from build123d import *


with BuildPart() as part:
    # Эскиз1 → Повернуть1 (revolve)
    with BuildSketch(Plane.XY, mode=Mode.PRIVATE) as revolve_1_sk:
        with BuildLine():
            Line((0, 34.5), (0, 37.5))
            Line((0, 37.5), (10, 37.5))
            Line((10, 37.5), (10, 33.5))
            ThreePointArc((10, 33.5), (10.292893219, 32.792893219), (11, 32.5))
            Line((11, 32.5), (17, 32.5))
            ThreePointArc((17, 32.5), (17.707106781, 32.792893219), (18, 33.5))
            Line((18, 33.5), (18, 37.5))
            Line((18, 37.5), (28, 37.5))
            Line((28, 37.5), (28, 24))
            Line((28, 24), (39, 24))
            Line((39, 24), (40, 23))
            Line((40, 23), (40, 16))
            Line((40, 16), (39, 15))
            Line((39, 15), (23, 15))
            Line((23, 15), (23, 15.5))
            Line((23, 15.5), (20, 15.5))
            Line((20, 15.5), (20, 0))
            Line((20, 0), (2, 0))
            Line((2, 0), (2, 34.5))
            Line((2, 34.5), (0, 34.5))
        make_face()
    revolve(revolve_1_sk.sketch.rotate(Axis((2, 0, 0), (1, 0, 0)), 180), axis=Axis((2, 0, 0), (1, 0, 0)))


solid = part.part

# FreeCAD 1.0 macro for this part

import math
import FreeCAD as App
import Part
import Sketcher

V = App.Vector
Q = App.Units.Quantity

doc = App.newDocument("Part")
params = doc.addObject("Spreadsheet::Sheet", "Params")
for row, (alias, value) in enumerate([
    ("sketch1_radius", "1 mm"),
    ("sketch1_width", "2 mm"),
    ("sketch1_width2", "18 mm"),
    ("sketch1_width3", "3 mm"),
    ("sketch1_width4", "16 mm"),
    ("revolution_angle", "360 deg"),
], start=1):
    params.set(f"A{row}", alias)
    params.set(f"B{row}", "=" + value)
    params.setAlias(f"B{row}", alias)

body = doc.addObject("PartDesign::Body", "Body")

# Sketch on XY plane
sketch1 = body.newObject("Sketcher::SketchObject", "Sketch")
sketch1.AttachmentSupport = (doc.getObject("XY_Plane"), [""])
sketch1.MapMode = "FlatFace"
sketch1.addGeometry([
    Part.LineSegment(V(0, 37.5, 0), V(0, 34.5, 0)),  # 0
    Part.LineSegment(V(0, 34.5, 0), V(2, 34.5, 0)),  # 1
    Part.LineSegment(V(2, 34.5, 0), V(2, 0, 0)),  # 2
    Part.LineSegment(V(2, 0, 0), V(20, 0, 0)),  # 3
    Part.LineSegment(V(20, 0, 0), V(20, 15.5, 0)),  # 4
    Part.LineSegment(V(20, 15.5, 0), V(23, 15.5, 0)),  # 5
    Part.LineSegment(V(23, 15.5, 0), V(23, 15, 0)),  # 6
    Part.LineSegment(V(23, 15, 0), V(39, 15, 0)),  # 7
    Part.LineSegment(V(39, 15, 0), V(40, 16, 0)),  # 8
    Part.LineSegment(V(40, 16, 0), V(40, 23, 0)),  # 9
    Part.LineSegment(V(40, 23, 0), V(39, 24, 0)),  # 10
    Part.LineSegment(V(39, 24, 0), V(28, 24, 0)),  # 11
    Part.LineSegment(V(28, 24, 0), V(28, 37.5, 0)),  # 12
    Part.LineSegment(V(28, 37.5, 0), V(18, 37.5, 0)),  # 13
    Part.LineSegment(V(18, 37.5, 0), V(18, 33.5, 0)),  # 14
    Part.ArcOfCircle(Part.Circle(V(17, 33.5, 0), V(0, 0, 1), 1), math.radians(-90), math.radians(0)),  # 15
    Part.LineSegment(V(17, 32.5, 0), V(11, 32.5, 0)),  # 16
    Part.ArcOfCircle(Part.Circle(V(11, 33.5, 0), V(0, 0, 1), 1), math.radians(-180), math.radians(-90)),  # 17
    Part.LineSegment(V(10, 33.5, 0), V(10, 37.5, 0)),  # 18
    Part.LineSegment(V(10, 37.5, 0), V(0, 37.5, 0)),  # 19
], False)
sketch1.addConstraint([
    Sketcher.Constraint("Coincident", 0, 2, 1, 1),
    Sketcher.Constraint("Coincident", 1, 2, 2, 1),
    Sketcher.Constraint("Coincident", 2, 2, 3, 1),
    Sketcher.Constraint("Coincident", 3, 2, 4, 1),
    Sketcher.Constraint("Coincident", 4, 2, 5, 1),
    Sketcher.Constraint("Coincident", 5, 2, 6, 1),
    Sketcher.Constraint("Coincident", 6, 2, 7, 1),
    Sketcher.Constraint("Coincident", 7, 2, 8, 1),
    Sketcher.Constraint("Coincident", 8, 2, 9, 1),
    Sketcher.Constraint("Coincident", 9, 2, 10, 1),
    Sketcher.Constraint("Coincident", 10, 2, 11, 1),
    Sketcher.Constraint("Coincident", 11, 2, 12, 1),
    Sketcher.Constraint("Coincident", 12, 2, 13, 1),
    Sketcher.Constraint("Coincident", 13, 2, 14, 1),
    Sketcher.Constraint("Tangent", 14, 2, 15, 2),
    Sketcher.Constraint("Tangent", 15, 1, 16, 1),
    Sketcher.Constraint("Tangent", 16, 2, 17, 2),
    Sketcher.Constraint("Tangent", 17, 1, 18, 1),
    Sketcher.Constraint("Coincident", 18, 2, 19, 1),
    Sketcher.Constraint("Coincident", 19, 2, 0, 1),
    Sketcher.Constraint("Vertical", 0),
    Sketcher.Constraint("Horizontal", 1),
    Sketcher.Constraint("Vertical", 2),
    Sketcher.Constraint("Horizontal", 3),
    Sketcher.Constraint("Vertical", 4),
    Sketcher.Constraint("Horizontal", 5),
    Sketcher.Constraint("Vertical", 6),
    Sketcher.Constraint("Horizontal", 7),
    Sketcher.Constraint("Vertical", 9),
    Sketcher.Constraint("Horizontal", 11),
    Sketcher.Constraint("Vertical", 12),
    Sketcher.Constraint("Horizontal", 13),
    Sketcher.Constraint("Vertical", 14),
    Sketcher.Constraint("Horizontal", 16),
    Sketcher.Constraint("Vertical", 18),
    Sketcher.Constraint("Horizontal", 19),
    Sketcher.Constraint("Equal", 15, 17),
    Sketcher.Constraint("PointOnObject", 0, 2, -2),
    Sketcher.Constraint("PointOnObject", 2, 2, -1),
    Sketcher.Constraint("Perpendicular", 8, 10),
    Sketcher.Constraint("Horizontal", 13, 2, 18, 2),
    Sketcher.Constraint("Vertical", 7, 2, 10, 2),
    Sketcher.Constraint("Equal", 13, 19),
    Sketcher.Constraint("Equal", 5, 0),
    Sketcher.Constraint("Equal", 8, 10),
    Sketcher.Constraint("Radius", 15, Q("1 mm")),
    Sketcher.Constraint("DistanceX", 1, 1, 1, 2, Q("2 mm")),
    Sketcher.Constraint("DistanceX", 3, 1, 3, 2, Q("18 mm")),
    Sketcher.Constraint("DistanceX", 5, 1, 5, 2, Q("3 mm")),
    Sketcher.Constraint("DistanceX", 7, 1, 7, 2, Q("16 mm")),
    Sketcher.Constraint("DistanceX", 11, 2, 11, 1, Q("11 mm")),
    Sketcher.Constraint("DistanceX", 13, 2, 13, 1, Q("10 mm")),
    Sketcher.Constraint("DistanceY", 9, 1, 9, 2, Q("7 mm")),
    Sketcher.Constraint("DistanceY", 14, 2, 14, 1, Q("4 mm")),
    Sketcher.Constraint("DistanceY", 2, 2, 2, 1, Q("34.5 mm")),
    Sketcher.Constraint("DistanceY", 4, 1, 4, 2, Q("15.5 mm")),
    Sketcher.Constraint("DistanceY", 6, 2, 6, 1, Q("0.5 mm")),
    Sketcher.Constraint("DistanceY", 12, 1, 12, 2, Q("13.5 mm")),
])
sketch1.setExpression("Constraints[45]", "Params.sketch1_radius")
sketch1.setExpression("Constraints[46]", "Params.sketch1_width")
sketch1.setExpression("Constraints[47]", "Params.sketch1_width2")
sketch1.setExpression("Constraints[48]", "Params.sketch1_width3")
sketch1.setExpression("Constraints[49]", "Params.sketch1_width4")
revolution = body.newObject("PartDesign::Revolution", "Revolution")
revolution.Profile = sketch1
revolution.ReferenceAxis = (sketch1, ["H_Axis"])
revolution.setExpression("Angle", "Params.revolution_angle")

doc.recompute()
